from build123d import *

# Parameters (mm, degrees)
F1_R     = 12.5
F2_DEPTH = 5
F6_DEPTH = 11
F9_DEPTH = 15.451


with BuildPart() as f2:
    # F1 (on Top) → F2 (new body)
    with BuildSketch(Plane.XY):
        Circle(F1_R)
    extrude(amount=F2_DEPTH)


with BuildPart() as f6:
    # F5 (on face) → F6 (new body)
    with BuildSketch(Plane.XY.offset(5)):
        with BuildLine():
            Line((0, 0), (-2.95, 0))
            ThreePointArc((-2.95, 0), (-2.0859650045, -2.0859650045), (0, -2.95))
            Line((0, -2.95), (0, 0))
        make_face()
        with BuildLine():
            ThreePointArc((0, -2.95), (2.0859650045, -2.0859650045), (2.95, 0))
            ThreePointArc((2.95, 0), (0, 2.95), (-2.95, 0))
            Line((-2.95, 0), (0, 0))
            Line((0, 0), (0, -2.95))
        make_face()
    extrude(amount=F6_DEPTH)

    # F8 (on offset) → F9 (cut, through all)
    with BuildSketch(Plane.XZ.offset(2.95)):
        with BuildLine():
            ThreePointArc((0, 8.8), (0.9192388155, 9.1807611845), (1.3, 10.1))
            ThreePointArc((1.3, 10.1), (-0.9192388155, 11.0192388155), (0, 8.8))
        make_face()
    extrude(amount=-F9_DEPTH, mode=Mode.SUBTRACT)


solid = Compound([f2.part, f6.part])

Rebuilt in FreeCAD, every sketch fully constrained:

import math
import FreeCAD as App
import Part
import Sketcher
from FreeCAD import Vector

doc = App.newDocument("Part")
body = doc.addObject("PartDesign::Body", "Body")

# Sketch on XY plane
sketch1 = body.newObject("Sketcher::SketchObject", "Sketch")
sketch1.AttachmentSupport = (doc.getObject("XY_Plane"), [""])
sketch1.MapMode = "FlatFace"
sketch1.addGeometry(Part.Circle(Vector(0, 0, 0), Vector(0, 0, 1), 12), False)
sketch1.addConstraint(Sketcher.Constraint("Coincident", 0, 3, -1, 1))
sketch1.addConstraint(Sketcher.Constraint("Diameter", 0, 25.0))
pad1 = body.newObject("PartDesign::Pad", "Pad")
pad1.Profile = sketch1
pad1.Length = 5
body2 = doc.addObject("PartDesign::Body", "Body001")

# Sketch on XY plane
sketch2 = body2.newObject("Sketcher::SketchObject", "Sketch001")
sketch2.AttachmentSupport = (doc.getObject("XY_Plane001"), [""])
sketch2.MapMode = "FlatFace"
sketch2.AttachmentOffset = App.Placement(Vector(0, 0, 5), App.Rotation())
sketch2.addGeometry(Part.Circle(Vector(0, 0, 0), Vector(0, 0, 1), 3), False)
sketch2.addConstraint(Sketcher.Constraint("Coincident", 0, 3, -1, 1))
sketch2.addConstraint(Sketcher.Constraint("Diameter", 0, 5.9))
pad2 = body2.newObject("PartDesign::Pad", "Pad001")
pad2.Profile = sketch2
pad2.Length = 11

# Sketch on XZ plane
sketch3 = body2.newObject("Sketcher::SketchObject", "Sketch002")
sketch3.AttachmentSupport = (doc.getObject("XZ_Plane001"), [""])
sketch3.MapMode = "FlatFace"
sketch3.AttachmentOffset = App.Placement(Vector(0, 0, 2.95), App.Rotation())
sketch3.addGeometry(Part.ArcOfCircle(Part.Circle(Vector(0, 10.1, 0), Vector(0, 0, 1), 1.3), math.radians(-90), math.radians(0)), False)
sketch3.addGeometry(Part.ArcOfCircle(Part.Circle(Vector(0, 10.1, 0), Vector(0, 0, 1), 1.3), math.radians(0), math.radians(270)), False)
sketch3.addConstraint(Sketcher.Constraint("Tangent", 0, 1, 1, 2))
sketch3.addConstraint(Sketcher.Constraint("Coincident", 1, 1, 0, 2))
sketch3.addConstraint(Sketcher.Constraint("PointOnObject", 0, 3, -2))
sketch3.addConstraint(Sketcher.Constraint("PointOnObject", 0, 1, -2))
sketch3.addConstraint(Sketcher.Constraint("Horizontal", 0, 3, 1, 1))
sketch3.addConstraint(Sketcher.Constraint("Radius", 0, 1.3))
sketch3.addConstraint(Sketcher.Constraint("DistanceY", -1, 1, 0, 3, 10.1))
pocket1 = body2.newObject("PartDesign::Pocket", "Pocket")
pocket1.Profile = sketch3
pocket1.Type = "ThroughAll"

doc.recompute()
